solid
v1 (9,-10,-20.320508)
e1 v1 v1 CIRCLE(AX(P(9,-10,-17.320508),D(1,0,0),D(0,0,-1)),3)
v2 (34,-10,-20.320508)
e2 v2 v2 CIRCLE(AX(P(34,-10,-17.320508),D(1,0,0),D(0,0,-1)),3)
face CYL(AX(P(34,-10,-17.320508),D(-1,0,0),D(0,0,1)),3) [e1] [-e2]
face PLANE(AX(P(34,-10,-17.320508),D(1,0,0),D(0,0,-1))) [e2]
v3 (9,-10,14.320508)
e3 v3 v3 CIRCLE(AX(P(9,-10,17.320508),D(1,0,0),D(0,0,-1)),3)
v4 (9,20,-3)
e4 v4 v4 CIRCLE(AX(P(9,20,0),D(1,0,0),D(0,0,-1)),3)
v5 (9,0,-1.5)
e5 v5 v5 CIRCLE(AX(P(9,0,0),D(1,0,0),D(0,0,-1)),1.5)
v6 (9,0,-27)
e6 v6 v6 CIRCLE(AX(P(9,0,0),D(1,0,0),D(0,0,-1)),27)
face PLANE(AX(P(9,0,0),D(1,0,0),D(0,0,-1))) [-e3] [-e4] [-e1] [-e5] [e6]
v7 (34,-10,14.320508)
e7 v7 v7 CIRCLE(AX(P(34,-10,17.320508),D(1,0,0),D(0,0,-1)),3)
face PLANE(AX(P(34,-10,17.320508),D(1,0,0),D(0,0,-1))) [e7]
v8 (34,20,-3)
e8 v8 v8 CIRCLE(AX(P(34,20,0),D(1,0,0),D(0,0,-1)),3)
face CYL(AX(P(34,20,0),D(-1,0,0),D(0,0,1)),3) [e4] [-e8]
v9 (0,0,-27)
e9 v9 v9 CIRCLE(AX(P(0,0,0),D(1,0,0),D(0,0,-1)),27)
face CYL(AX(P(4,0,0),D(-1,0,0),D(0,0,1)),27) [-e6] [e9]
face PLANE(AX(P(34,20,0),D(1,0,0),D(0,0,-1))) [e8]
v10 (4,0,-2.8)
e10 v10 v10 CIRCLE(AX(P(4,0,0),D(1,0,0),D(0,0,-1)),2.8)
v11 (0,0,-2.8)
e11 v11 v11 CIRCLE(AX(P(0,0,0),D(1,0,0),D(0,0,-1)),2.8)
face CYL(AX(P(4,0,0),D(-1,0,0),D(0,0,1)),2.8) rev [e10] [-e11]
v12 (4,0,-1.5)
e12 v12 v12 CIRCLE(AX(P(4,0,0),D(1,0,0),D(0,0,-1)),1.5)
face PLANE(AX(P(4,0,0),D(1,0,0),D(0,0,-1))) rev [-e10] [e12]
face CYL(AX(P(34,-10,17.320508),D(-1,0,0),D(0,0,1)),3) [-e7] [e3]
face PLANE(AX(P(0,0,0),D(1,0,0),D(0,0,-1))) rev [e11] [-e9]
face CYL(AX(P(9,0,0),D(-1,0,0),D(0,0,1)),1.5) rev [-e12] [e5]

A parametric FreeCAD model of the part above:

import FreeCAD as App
import Part
import Sketcher

V = App.Vector
Q = App.Units.Quantity

doc = App.newDocument("Part")
body = doc.addObject("PartDesign::Body", "Body")

sketch1 = body.newObject("Sketcher::SketchObject", "Sketch")
sketch1.AttachmentSupport = (doc.getObject("YZ_Plane"), [""])
sketch1.MapMode = "FlatFace"
sketch1.addGeometry([
    Part.Circle(V(0, 0, 0), V(0, 0, 1), 27),
    Part.Circle(V(0, 0, 0), V(0, 0, 1), 2.8),
], False)
sketch1.addConstraint([
    Sketcher.Constraint("Coincident", 0, 3, -1, 1),
    Sketcher.Constraint("Coincident", 1, 3, -1, 1),
    Sketcher.Constraint("Diameter", 0, Q("54 mm")),
    Sketcher.Constraint("Diameter", 1, Q("5.6 mm")),
])
pad1 = body.newObject("PartDesign::Pad", "Pad")
pad1.Profile = sketch1
pad1.Length = 4

sketch2 = body.newObject("Sketcher::SketchObject", "Sketch001")
sketch2.AttachmentSupport = (doc.getObject("YZ_Plane"), [""])
sketch2.MapMode = "FlatFace"
sketch2.AttachmentOffset = App.Placement(V(0, 0, 4), App.Rotation())
sketch2.addGeometry([
    Part.Circle(V(0, 0, 0), V(0, 0, 1), 27),
    Part.Circle(V(0, 0, 0), V(0, 0, 1), 1.5),
], False)
sketch2.addConstraint([
    Sketcher.Constraint("Coincident", 0, 3, -1, 1),
    Sketcher.Constraint("Coincident", 1, 3, -1, 1),
    Sketcher.Constraint("Diameter", 0, Q("54 mm")),
    Sketcher.Constraint("Diameter", 1, Q("3 mm")),
])
pad2 = body.newObject("PartDesign::Pad", "Pad001")
pad2.Profile = sketch2
pad2.Length = 5

sketch3 = body.newObject("Sketcher::SketchObject", "Sketch002")
sketch3.AttachmentSupport = (doc.getObject("YZ_Plane"), [""])
sketch3.MapMode = "FlatFace"
sketch3.AttachmentOffset = App.Placement(V(0, 0, 9), App.Rotation())
sketch3.addGeometry([
    Part.Circle(V(20, 0, 0), V(0, 0, 1), 3),
    Part.Circle(V(-10, -17.3, 0), V(0, 0, 1), 3),
    Part.Circle(V(-10, 17.3, 0), V(0, 0, 1), 3),
], False)
sketch3.addConstraint([
    Sketcher.Constraint("Equal", 0, 1),
    Sketcher.Constraint("Equal", 1, 2),
    Sketcher.Constraint("Symmetric", 1, 3, 2, 3, -1),
    Sketcher.Constraint("PointOnObject", 0, 3, -1),
    Sketcher.Constraint("Diameter", 0, Q("6 mm")),
    Sketcher.Constraint("DistanceX", -1, 1, 0, 3, Q("20 mm")),
    Sketcher.Constraint("DistanceX", 1, 3, -1, 1, Q("10 mm")),
    Sketcher.Constraint("DistanceY", 1, 3, -1, 1, Q("17.320508 mm")),
])
pad3 = body.newObject("PartDesign::Pad", "Pad002")
pad3.Profile = sketch3
pad3.Length = 25

sketch4 = body.newObject("Sketcher::SketchObject", "Sketch003")
sketch4.AttachmentSupport = (doc.getObject("YZ_Plane"), [""])
sketch4.MapMode = "FlatFace"
sketch4.AttachmentOffset = App.Placement(V(0, 0, 9), App.Rotation())
sketch4.addGeometry([
    Part.Circle(V(0, 0, 0), V(0, 0, 1), 12),
    Part.Circle(V(0, 0, 0), V(0, 0, 1), 8),
], False)
sketch4.addConstraint([
    Sketcher.Constraint("Coincident", 0, 3, -1, 1),
    Sketcher.Constraint("Coincident", 1, 3, -1, 1),
    Sketcher.Constraint("Diameter", 0, Q("24.4 mm")),
    Sketcher.Constraint("Diameter", 1, Q("15.28 mm")),
])
pad4 = body.newObject("PartDesign::Pad", "Pad003")
pad4.Profile = sketch4
pad4.Length = 3

sketch5 = body.newObject("Sketcher::SketchObject", "Sketch004")
sketch5.AttachmentSupport = (doc.getObject("YZ_Plane"), [""])
sketch5.MapMode = "FlatFace"
sketch5.AttachmentOffset = App.Placement(V(0, 0, 12), App.Rotation())
sketch5.addGeometry([
    Part.Circle(V(0, 0, 0), V(0, 0, 1), 12),
    Part.Circle(V(0, 0, 0), V(0, 0, 1), 8),
], False)
sketch5.addConstraint([
    Sketcher.Constraint("Coincident", 0, 3, -1, 1),
    Sketcher.Constraint("Coincident", 1, 3, -1, 1),
    Sketcher.Constraint("Diameter", 0, Q("24.4 mm")),
    Sketcher.Constraint("Diameter", 1, Q("15.28 mm")),
])
pocket1 = body.newObject("PartDesign::Pocket", "Pocket")
pocket1.Profile = sketch5
pocket1.Length = 3

doc.recompute()
